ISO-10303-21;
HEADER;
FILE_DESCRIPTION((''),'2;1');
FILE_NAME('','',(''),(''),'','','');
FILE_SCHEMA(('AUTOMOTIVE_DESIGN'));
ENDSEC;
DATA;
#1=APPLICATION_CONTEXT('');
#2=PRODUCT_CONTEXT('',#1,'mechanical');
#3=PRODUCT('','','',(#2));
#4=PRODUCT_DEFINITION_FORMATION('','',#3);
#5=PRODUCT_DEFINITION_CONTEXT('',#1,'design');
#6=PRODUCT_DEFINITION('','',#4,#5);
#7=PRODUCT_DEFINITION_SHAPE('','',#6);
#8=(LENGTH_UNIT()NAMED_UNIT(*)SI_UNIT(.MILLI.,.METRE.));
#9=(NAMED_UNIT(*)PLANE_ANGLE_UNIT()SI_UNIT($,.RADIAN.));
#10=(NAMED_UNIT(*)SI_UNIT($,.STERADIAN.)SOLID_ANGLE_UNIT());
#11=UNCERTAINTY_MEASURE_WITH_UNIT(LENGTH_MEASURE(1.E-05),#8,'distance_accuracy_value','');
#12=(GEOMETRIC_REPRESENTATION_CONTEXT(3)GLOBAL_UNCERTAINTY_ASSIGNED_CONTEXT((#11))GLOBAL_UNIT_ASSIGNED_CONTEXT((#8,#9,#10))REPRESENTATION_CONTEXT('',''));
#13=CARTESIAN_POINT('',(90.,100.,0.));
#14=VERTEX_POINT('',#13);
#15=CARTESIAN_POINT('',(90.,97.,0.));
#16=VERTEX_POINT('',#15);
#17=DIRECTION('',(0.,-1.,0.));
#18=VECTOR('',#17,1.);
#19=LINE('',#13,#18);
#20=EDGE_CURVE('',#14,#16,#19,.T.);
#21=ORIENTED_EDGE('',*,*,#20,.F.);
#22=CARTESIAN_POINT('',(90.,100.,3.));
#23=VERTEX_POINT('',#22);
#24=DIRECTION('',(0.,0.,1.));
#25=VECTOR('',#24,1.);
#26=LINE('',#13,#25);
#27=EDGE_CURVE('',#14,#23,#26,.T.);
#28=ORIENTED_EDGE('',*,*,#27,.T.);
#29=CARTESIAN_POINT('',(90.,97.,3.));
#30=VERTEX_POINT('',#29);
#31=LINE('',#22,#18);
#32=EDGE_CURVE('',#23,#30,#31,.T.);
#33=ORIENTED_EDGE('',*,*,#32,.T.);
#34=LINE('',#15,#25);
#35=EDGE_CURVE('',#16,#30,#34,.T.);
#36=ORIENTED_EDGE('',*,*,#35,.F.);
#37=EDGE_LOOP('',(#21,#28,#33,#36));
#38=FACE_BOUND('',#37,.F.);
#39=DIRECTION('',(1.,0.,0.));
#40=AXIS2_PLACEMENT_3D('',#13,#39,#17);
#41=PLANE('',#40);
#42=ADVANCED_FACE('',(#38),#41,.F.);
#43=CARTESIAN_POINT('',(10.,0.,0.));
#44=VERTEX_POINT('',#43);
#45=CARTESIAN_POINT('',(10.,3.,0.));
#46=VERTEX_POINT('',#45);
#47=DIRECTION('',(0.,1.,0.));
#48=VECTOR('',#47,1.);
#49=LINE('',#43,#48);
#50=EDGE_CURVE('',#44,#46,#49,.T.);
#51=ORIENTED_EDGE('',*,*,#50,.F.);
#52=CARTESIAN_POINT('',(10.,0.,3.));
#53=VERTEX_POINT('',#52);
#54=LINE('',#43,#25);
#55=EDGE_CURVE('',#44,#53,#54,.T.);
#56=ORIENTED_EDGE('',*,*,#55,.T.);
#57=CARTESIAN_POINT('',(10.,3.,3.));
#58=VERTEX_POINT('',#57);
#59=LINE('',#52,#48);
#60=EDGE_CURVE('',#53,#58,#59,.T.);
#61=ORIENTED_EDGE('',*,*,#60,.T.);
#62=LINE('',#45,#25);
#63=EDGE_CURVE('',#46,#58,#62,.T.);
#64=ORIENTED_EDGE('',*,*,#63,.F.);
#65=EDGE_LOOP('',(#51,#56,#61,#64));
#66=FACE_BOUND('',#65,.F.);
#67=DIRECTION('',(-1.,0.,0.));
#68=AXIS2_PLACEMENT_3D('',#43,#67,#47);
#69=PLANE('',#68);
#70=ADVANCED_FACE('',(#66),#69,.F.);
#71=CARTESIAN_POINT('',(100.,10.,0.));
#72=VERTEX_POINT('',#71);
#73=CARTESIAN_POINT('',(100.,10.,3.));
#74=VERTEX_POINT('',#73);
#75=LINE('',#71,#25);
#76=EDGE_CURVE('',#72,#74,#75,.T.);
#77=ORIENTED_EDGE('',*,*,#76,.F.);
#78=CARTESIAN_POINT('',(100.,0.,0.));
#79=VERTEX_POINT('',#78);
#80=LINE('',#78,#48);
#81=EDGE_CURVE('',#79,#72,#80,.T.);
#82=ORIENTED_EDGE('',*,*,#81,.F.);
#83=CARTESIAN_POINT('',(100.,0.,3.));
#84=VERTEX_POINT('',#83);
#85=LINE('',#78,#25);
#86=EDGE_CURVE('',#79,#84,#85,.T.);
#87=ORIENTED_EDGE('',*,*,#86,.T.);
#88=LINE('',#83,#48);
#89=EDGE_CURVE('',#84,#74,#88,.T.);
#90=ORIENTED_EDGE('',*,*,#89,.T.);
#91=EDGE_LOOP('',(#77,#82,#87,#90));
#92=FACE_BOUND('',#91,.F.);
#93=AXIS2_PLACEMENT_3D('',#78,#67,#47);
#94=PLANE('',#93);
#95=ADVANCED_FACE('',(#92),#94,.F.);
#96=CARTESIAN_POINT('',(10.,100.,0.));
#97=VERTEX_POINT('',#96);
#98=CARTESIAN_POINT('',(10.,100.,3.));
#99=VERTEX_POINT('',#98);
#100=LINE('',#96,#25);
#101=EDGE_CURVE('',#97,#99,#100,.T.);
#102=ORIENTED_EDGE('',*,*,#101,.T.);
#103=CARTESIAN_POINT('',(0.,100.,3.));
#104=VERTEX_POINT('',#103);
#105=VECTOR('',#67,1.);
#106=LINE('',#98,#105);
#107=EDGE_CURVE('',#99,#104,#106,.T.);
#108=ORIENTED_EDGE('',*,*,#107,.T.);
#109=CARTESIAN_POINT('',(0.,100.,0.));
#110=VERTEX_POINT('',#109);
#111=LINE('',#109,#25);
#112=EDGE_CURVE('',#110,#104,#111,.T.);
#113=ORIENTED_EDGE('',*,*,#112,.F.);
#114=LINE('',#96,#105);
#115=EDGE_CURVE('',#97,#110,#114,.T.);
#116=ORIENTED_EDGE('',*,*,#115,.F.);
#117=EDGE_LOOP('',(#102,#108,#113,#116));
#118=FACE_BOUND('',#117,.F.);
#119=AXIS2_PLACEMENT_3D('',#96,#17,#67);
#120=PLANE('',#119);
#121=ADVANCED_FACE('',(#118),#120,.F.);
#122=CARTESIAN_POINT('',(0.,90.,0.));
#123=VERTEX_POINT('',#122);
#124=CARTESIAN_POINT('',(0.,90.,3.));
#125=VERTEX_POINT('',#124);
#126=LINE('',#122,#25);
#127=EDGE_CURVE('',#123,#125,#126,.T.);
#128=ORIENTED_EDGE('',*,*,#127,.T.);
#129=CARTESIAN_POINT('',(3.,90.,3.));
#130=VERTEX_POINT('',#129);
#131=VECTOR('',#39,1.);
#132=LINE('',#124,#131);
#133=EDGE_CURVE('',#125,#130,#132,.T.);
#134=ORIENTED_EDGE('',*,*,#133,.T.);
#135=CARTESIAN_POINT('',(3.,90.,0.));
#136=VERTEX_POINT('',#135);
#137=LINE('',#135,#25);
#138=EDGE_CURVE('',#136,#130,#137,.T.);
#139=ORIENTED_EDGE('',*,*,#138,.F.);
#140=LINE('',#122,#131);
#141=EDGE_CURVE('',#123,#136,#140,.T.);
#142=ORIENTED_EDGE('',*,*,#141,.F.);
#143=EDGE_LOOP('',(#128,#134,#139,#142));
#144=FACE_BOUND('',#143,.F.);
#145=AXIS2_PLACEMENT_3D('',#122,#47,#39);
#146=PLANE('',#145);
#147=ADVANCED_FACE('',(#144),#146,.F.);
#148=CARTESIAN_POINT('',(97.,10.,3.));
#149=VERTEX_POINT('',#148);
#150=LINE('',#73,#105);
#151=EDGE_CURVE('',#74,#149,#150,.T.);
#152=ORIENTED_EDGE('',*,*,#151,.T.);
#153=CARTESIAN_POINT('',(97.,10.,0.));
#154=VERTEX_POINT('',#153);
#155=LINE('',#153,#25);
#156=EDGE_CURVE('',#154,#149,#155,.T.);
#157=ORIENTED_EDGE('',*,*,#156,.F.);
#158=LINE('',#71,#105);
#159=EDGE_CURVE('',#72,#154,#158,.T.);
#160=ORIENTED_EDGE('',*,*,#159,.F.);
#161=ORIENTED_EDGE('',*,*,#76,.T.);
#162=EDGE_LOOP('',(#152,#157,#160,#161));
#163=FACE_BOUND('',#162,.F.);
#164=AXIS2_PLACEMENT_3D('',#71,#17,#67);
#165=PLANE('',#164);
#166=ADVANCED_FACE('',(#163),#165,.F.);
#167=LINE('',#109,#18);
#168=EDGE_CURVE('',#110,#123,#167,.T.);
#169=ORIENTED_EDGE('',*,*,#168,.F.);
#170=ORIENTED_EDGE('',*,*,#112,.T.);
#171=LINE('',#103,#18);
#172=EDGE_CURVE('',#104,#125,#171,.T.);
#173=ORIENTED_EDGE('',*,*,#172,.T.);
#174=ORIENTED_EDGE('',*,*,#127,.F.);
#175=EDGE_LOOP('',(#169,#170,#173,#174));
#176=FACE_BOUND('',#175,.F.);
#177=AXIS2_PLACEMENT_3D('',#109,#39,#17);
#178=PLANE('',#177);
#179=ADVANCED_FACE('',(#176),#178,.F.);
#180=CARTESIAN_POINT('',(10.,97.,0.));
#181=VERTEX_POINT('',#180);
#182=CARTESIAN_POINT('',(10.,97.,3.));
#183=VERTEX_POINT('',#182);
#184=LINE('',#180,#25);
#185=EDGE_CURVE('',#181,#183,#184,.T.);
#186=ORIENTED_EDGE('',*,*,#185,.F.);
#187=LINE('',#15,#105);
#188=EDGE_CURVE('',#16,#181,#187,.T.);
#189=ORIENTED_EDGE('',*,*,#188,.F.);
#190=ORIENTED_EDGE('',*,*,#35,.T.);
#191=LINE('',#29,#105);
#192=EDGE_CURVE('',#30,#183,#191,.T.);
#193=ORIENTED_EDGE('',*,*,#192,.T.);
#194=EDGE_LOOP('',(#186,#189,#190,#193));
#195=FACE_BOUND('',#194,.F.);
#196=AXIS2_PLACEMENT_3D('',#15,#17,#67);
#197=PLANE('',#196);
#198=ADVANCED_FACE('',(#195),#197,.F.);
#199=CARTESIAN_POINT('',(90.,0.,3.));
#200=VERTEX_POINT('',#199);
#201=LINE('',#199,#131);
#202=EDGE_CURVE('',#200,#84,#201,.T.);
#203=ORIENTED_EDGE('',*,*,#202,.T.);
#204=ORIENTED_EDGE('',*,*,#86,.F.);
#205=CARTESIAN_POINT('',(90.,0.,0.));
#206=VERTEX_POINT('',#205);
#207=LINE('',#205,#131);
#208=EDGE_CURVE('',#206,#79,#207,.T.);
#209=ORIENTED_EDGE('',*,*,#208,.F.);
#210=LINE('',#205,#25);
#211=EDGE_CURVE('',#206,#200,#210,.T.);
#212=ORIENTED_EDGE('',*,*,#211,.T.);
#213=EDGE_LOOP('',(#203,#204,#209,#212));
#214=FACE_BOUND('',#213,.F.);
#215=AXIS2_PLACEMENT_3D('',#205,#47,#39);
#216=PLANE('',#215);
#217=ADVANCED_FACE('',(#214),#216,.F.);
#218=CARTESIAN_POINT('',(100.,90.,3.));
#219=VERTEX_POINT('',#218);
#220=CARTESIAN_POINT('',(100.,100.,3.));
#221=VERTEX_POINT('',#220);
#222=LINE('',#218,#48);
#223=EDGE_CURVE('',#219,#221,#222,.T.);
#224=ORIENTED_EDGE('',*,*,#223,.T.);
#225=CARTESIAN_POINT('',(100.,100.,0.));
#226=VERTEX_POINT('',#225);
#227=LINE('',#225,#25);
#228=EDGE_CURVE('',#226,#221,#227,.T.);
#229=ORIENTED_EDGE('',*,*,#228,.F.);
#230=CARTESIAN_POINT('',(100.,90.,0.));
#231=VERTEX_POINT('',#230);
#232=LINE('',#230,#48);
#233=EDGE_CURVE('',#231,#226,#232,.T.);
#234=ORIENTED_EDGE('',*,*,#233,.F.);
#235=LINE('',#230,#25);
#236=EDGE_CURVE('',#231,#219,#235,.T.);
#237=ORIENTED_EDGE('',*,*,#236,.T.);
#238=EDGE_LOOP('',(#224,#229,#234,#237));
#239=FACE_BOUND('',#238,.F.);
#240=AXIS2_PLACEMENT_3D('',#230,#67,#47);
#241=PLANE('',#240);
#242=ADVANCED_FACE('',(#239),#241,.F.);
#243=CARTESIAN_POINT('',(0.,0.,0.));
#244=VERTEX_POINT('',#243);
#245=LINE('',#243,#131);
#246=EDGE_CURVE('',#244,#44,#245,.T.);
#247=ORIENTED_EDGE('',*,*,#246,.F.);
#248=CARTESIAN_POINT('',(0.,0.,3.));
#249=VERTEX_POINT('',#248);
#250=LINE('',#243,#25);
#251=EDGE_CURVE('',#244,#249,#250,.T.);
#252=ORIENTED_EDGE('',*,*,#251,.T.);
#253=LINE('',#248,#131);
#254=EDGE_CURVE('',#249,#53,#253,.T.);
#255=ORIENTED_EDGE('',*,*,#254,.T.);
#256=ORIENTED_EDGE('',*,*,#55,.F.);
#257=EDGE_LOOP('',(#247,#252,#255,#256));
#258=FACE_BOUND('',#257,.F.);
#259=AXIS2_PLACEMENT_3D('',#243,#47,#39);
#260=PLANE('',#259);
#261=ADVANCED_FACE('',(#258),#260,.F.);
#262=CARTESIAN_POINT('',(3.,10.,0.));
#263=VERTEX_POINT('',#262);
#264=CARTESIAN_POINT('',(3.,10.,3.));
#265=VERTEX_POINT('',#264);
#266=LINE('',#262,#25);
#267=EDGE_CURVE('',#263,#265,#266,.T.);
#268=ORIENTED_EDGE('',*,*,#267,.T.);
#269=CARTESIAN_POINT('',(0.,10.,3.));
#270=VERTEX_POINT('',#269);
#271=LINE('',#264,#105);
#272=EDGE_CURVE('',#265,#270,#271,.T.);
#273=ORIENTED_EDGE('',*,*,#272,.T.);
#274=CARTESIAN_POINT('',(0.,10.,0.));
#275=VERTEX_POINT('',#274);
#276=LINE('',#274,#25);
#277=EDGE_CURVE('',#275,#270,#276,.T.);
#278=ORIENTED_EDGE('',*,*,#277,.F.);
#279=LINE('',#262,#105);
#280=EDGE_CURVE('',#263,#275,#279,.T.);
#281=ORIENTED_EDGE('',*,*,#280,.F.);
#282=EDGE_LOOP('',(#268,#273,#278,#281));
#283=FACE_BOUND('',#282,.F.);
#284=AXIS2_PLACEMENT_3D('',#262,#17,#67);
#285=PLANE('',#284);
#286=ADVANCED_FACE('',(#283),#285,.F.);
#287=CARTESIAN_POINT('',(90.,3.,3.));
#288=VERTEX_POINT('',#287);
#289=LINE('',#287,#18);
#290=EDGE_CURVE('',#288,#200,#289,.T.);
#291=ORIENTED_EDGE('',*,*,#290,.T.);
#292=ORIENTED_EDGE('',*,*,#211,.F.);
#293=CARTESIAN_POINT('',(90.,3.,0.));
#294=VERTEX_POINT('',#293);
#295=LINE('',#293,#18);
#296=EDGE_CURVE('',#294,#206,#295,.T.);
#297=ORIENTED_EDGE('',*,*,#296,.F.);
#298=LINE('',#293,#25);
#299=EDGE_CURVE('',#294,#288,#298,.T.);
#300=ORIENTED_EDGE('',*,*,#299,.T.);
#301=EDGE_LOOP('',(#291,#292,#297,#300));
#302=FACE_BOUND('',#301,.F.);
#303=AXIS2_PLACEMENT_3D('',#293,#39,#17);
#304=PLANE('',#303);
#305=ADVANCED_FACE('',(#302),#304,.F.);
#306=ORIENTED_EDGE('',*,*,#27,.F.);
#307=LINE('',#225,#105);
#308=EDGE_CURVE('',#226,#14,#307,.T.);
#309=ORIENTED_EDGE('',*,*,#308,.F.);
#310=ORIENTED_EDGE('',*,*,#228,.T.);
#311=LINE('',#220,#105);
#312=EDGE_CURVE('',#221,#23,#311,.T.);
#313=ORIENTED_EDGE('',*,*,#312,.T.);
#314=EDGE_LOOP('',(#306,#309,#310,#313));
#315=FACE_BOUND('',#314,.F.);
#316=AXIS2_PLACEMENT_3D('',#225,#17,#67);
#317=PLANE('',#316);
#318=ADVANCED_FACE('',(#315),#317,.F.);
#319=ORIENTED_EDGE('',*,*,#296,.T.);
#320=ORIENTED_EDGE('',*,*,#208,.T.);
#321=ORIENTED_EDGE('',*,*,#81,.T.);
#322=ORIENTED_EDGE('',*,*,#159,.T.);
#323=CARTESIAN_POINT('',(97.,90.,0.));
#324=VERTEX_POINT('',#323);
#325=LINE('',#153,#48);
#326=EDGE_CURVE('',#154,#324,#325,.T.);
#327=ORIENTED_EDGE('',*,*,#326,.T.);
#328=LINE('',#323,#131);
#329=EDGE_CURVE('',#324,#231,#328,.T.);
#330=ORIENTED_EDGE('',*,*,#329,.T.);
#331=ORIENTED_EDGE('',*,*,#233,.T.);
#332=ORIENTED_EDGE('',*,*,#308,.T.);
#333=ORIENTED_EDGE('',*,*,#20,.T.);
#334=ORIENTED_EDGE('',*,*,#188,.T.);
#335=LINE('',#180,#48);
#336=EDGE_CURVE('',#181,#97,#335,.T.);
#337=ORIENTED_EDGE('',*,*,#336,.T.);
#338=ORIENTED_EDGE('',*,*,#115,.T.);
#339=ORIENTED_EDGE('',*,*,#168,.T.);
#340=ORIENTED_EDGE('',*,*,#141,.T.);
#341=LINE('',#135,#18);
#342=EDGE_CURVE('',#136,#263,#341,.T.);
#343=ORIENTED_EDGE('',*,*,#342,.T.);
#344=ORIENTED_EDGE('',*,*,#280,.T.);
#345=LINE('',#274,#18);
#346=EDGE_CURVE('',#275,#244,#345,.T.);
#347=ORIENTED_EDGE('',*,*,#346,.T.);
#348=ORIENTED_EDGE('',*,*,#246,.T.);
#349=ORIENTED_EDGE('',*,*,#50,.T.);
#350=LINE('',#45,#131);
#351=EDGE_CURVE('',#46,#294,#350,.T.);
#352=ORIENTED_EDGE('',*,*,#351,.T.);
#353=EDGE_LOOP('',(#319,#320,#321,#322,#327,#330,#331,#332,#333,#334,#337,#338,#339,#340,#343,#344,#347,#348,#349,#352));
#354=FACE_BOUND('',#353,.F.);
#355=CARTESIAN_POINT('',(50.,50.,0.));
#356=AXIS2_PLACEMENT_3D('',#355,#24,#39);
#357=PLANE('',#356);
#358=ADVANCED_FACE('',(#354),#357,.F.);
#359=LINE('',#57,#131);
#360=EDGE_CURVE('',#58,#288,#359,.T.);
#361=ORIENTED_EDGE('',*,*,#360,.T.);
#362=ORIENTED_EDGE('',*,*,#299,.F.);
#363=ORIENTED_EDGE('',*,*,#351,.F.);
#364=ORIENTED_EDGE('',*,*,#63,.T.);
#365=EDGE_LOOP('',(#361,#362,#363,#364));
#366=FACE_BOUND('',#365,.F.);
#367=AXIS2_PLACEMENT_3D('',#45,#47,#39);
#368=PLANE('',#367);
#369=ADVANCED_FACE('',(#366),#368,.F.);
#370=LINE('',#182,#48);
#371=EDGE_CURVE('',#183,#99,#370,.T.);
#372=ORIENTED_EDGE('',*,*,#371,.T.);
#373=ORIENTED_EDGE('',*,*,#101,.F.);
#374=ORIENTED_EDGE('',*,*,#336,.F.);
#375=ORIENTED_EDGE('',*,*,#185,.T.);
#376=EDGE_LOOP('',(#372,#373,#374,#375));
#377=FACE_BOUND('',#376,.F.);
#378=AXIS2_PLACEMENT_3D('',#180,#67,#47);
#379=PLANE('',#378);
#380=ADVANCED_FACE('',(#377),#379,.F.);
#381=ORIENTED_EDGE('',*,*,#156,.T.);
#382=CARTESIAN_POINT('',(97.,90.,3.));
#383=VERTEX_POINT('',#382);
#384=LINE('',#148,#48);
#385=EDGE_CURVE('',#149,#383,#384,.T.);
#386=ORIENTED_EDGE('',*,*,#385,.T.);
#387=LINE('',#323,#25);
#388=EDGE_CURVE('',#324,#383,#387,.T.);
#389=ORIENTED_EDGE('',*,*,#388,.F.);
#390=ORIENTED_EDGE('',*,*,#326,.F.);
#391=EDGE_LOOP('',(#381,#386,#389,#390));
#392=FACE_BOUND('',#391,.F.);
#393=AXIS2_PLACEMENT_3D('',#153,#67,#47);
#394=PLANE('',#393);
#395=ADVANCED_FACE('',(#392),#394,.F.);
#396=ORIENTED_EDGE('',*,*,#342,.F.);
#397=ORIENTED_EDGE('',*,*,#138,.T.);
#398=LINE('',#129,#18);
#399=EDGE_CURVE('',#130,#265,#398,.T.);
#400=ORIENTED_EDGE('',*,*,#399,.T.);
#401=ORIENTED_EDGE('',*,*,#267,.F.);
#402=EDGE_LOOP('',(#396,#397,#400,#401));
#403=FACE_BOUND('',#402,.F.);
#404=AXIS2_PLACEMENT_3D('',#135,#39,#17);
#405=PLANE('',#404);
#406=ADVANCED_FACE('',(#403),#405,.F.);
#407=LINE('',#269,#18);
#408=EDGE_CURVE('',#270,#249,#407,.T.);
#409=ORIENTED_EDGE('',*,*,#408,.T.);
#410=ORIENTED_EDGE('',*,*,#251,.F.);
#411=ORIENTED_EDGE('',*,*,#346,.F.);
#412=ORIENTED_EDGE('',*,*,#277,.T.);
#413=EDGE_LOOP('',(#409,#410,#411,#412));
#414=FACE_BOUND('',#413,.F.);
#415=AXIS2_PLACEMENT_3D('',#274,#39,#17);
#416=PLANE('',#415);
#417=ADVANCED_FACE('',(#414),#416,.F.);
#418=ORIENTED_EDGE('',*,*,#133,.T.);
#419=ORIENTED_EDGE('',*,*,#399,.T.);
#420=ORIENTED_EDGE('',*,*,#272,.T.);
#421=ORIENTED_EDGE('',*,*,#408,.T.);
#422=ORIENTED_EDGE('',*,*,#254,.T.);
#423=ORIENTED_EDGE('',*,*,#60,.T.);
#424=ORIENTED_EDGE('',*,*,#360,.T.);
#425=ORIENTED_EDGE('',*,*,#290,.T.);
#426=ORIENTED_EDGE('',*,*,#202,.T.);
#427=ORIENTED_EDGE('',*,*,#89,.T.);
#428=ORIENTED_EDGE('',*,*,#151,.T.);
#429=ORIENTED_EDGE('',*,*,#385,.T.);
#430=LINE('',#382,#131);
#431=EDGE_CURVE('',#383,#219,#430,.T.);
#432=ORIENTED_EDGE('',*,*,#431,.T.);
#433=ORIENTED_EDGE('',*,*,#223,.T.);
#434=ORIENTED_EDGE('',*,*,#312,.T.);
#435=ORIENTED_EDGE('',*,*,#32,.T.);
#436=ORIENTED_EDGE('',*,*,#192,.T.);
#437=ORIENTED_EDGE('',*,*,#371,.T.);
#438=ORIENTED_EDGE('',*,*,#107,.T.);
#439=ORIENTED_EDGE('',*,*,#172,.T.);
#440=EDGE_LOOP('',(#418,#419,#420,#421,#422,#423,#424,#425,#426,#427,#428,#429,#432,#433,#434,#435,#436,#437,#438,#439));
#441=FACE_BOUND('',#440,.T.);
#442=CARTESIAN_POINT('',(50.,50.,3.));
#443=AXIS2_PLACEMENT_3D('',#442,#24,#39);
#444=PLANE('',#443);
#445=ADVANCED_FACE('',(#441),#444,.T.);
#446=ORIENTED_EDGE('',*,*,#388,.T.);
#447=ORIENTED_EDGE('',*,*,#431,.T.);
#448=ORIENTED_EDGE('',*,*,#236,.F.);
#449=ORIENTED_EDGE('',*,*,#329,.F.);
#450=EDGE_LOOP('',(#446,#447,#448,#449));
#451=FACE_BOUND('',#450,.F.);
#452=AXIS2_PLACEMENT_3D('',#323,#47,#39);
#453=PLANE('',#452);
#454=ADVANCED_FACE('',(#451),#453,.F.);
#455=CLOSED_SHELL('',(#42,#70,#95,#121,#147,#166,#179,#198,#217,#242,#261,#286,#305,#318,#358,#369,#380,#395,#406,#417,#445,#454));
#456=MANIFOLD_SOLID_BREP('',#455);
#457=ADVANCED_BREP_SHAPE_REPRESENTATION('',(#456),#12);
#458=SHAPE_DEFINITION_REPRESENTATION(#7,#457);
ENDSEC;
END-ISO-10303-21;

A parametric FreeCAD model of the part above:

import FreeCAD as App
import Part
import Sketcher
Q = App.Units.Quantity

doc = App.newDocument("Part")
body = doc.addObject("PartDesign::Body", "Body")

sketch1 = body.newObject("Sketcher::SketchObject", "Sketch")
sketch1.AttachmentSupport = (doc.getObject("XY_Plane"), [""])
sketch1.MapMode = "FlatFace"
sketch1.addGeometry([
    Part.LineSegment(App.Vector(0, 10, 0), App.Vector(0, 0, 0)),
    Part.LineSegment(App.Vector(0, 0, 0), App.Vector(10, 0, 0)),
    Part.LineSegment(App.Vector(10, 0, 0), App.Vector(10, 3, 0)),
    Part.LineSegment(App.Vector(10, 3, 0), App.Vector(90, 3, 0)),
    Part.LineSegment(App.Vector(90, 3, 0), App.Vector(90, 0, 0)),
    Part.LineSegment(App.Vector(90, 0, 0), App.Vector(100, 0, 0)),
    Part.LineSegment(App.Vector(100, 0, 0), App.Vector(100, 10, 0)),
    Part.LineSegment(App.Vector(100, 10, 0), App.Vector(97, 10, 0)),
    Part.LineSegment(App.Vector(97, 10, 0), App.Vector(97, 90, 0)),
    Part.LineSegment(App.Vector(97, 90, 0), App.Vector(100, 90, 0)),
    Part.LineSegment(App.Vector(100, 90, 0), App.Vector(100, 100, 0)),
    Part.LineSegment(App.Vector(100, 100, 0), App.Vector(90, 100, 0)),
    Part.LineSegment(App.Vector(90, 100, 0), App.Vector(90, 97, 0)),
    Part.LineSegment(App.Vector(90, 97, 0), App.Vector(10, 97, 0)),
    Part.LineSegment(App.Vector(10, 97, 0), App.Vector(10, 100, 0)),
    Part.LineSegment(App.Vector(10, 100, 0), App.Vector(0, 100, 0)),
    Part.LineSegment(App.Vector(0, 100, 0), App.Vector(0, 90, 0)),
    Part.LineSegment(App.Vector(0, 90, 0), App.Vector(3, 90, 0)),
    Part.LineSegment(App.Vector(3, 90, 0), App.Vector(3, 10, 0)),
    Part.LineSegment(App.Vector(3, 10, 0), App.Vector(0, 10, 0)),
], False)
sketch1.addConstraint([
    Sketcher.Constraint("Coincident", 0, 2, 1, 1),
    Sketcher.Constraint("Coincident", 1, 2, 2, 1),
    Sketcher.Constraint("Coincident", 2, 2, 3, 1),
    Sketcher.Constraint("Coincident", 3, 2, 4, 1),
    Sketcher.Constraint("Coincident", 4, 2, 5, 1),
    Sketcher.Constraint("Coincident", 5, 2, 6, 1),
    Sketcher.Constraint("Coincident", 6, 2, 7, 1),
    Sketcher.Constraint("Coincident", 7, 2, 8, 1),
    Sketcher.Constraint("Coincident", 8, 2, 9, 1),
    Sketcher.Constraint("Coincident", 9, 2, 10, 1),
    Sketcher.Constraint("Coincident", 10, 2, 11, 1),
    Sketcher.Constraint("Coincident", 11, 2, 12, 1),
    Sketcher.Constraint("Coincident", 12, 2, 13, 1),
    Sketcher.Constraint("Coincident", 13, 2, 14, 1),
    Sketcher.Constraint("Coincident", 14, 2, 15, 1),
    Sketcher.Constraint("Coincident", 15, 2, 16, 1),
    Sketcher.Constraint("Coincident", 16, 2, 17, 1),
    Sketcher.Constraint("Coincident", 17, 2, 18, 1),
    Sketcher.Constraint("Coincident", 18, 2, 19, 1),
    Sketcher.Constraint("Coincident", 19, 2, 0, 1),
    Sketcher.Constraint("Vertical", 0),
    Sketcher.Constraint("Horizontal", 1),
    Sketcher.Constraint("Vertical", 2),
    Sketcher.Constraint("Horizontal", 3),
    Sketcher.Constraint("Vertical", 4),
    Sketcher.Constraint("Horizontal", 5),
    Sketcher.Constraint("Vertical", 6),
    Sketcher.Constraint("Horizontal", 7),
    Sketcher.Constraint("Vertical", 8),
    Sketcher.Constraint("Horizontal", 9),
    Sketcher.Constraint("Vertical", 10),
    Sketcher.Constraint("Horizontal", 11),
    Sketcher.Constraint("Vertical", 12),
    Sketcher.Constraint("Horizontal", 13),
    Sketcher.Constraint("Vertical", 14),
    Sketcher.Constraint("Horizontal", 15),
    Sketcher.Constraint("Vertical", 16),
    Sketcher.Constraint("Horizontal", 17),
    Sketcher.Constraint("Vertical", 18),
    Sketcher.Constraint("Horizontal", 19),
    Sketcher.Constraint("Coincident", 0, 2, -1, 1),
    Sketcher.Constraint("PointOnObject", 4, 2, -1),
    Sketcher.Constraint("PointOnObject", 15, 2, -2),
    Sketcher.Constraint("Horizontal", 11, 2, 14, 2),
    Sketcher.Constraint("Horizontal", 9, 2, 16, 2),
    Sketcher.Constraint("Horizontal", 7, 2, 18, 2),
    Sketcher.Constraint("Vertical", 6, 2, 9, 2),
    Sketcher.Constraint("Vertical", 4, 2, 11, 2),
    Sketcher.Constraint("Vertical", 2, 2, 13, 2),
    Sketcher.Constraint("Equal", 1, 5),
    Sketcher.Constraint("Equal", 9, 17),
    Sketcher.Constraint("Equal", 15, 0),
    Sketcher.Constraint("Equal", 19, 2),
    Sketcher.Constraint("Equal", 13, 8),
    Sketcher.Constraint("Equal", 6, 10),
    Sketcher.Constraint("Equal", 4, 12),
    Sketcher.Constraint("DistanceX", 1, 1, 1, 2, Q("10 mm")),
    Sketcher.Constraint("DistanceX", 3, 1, 3, 2, Q("80 mm")),
    Sketcher.Constraint("DistanceX", 7, 2, 7, 1, Q("3 mm")),
])
pad1 = body.newObject("PartDesign::Pad", "Pad")
pad1.Profile = sketch1
pad1.Length = 3

doc.recompute()
